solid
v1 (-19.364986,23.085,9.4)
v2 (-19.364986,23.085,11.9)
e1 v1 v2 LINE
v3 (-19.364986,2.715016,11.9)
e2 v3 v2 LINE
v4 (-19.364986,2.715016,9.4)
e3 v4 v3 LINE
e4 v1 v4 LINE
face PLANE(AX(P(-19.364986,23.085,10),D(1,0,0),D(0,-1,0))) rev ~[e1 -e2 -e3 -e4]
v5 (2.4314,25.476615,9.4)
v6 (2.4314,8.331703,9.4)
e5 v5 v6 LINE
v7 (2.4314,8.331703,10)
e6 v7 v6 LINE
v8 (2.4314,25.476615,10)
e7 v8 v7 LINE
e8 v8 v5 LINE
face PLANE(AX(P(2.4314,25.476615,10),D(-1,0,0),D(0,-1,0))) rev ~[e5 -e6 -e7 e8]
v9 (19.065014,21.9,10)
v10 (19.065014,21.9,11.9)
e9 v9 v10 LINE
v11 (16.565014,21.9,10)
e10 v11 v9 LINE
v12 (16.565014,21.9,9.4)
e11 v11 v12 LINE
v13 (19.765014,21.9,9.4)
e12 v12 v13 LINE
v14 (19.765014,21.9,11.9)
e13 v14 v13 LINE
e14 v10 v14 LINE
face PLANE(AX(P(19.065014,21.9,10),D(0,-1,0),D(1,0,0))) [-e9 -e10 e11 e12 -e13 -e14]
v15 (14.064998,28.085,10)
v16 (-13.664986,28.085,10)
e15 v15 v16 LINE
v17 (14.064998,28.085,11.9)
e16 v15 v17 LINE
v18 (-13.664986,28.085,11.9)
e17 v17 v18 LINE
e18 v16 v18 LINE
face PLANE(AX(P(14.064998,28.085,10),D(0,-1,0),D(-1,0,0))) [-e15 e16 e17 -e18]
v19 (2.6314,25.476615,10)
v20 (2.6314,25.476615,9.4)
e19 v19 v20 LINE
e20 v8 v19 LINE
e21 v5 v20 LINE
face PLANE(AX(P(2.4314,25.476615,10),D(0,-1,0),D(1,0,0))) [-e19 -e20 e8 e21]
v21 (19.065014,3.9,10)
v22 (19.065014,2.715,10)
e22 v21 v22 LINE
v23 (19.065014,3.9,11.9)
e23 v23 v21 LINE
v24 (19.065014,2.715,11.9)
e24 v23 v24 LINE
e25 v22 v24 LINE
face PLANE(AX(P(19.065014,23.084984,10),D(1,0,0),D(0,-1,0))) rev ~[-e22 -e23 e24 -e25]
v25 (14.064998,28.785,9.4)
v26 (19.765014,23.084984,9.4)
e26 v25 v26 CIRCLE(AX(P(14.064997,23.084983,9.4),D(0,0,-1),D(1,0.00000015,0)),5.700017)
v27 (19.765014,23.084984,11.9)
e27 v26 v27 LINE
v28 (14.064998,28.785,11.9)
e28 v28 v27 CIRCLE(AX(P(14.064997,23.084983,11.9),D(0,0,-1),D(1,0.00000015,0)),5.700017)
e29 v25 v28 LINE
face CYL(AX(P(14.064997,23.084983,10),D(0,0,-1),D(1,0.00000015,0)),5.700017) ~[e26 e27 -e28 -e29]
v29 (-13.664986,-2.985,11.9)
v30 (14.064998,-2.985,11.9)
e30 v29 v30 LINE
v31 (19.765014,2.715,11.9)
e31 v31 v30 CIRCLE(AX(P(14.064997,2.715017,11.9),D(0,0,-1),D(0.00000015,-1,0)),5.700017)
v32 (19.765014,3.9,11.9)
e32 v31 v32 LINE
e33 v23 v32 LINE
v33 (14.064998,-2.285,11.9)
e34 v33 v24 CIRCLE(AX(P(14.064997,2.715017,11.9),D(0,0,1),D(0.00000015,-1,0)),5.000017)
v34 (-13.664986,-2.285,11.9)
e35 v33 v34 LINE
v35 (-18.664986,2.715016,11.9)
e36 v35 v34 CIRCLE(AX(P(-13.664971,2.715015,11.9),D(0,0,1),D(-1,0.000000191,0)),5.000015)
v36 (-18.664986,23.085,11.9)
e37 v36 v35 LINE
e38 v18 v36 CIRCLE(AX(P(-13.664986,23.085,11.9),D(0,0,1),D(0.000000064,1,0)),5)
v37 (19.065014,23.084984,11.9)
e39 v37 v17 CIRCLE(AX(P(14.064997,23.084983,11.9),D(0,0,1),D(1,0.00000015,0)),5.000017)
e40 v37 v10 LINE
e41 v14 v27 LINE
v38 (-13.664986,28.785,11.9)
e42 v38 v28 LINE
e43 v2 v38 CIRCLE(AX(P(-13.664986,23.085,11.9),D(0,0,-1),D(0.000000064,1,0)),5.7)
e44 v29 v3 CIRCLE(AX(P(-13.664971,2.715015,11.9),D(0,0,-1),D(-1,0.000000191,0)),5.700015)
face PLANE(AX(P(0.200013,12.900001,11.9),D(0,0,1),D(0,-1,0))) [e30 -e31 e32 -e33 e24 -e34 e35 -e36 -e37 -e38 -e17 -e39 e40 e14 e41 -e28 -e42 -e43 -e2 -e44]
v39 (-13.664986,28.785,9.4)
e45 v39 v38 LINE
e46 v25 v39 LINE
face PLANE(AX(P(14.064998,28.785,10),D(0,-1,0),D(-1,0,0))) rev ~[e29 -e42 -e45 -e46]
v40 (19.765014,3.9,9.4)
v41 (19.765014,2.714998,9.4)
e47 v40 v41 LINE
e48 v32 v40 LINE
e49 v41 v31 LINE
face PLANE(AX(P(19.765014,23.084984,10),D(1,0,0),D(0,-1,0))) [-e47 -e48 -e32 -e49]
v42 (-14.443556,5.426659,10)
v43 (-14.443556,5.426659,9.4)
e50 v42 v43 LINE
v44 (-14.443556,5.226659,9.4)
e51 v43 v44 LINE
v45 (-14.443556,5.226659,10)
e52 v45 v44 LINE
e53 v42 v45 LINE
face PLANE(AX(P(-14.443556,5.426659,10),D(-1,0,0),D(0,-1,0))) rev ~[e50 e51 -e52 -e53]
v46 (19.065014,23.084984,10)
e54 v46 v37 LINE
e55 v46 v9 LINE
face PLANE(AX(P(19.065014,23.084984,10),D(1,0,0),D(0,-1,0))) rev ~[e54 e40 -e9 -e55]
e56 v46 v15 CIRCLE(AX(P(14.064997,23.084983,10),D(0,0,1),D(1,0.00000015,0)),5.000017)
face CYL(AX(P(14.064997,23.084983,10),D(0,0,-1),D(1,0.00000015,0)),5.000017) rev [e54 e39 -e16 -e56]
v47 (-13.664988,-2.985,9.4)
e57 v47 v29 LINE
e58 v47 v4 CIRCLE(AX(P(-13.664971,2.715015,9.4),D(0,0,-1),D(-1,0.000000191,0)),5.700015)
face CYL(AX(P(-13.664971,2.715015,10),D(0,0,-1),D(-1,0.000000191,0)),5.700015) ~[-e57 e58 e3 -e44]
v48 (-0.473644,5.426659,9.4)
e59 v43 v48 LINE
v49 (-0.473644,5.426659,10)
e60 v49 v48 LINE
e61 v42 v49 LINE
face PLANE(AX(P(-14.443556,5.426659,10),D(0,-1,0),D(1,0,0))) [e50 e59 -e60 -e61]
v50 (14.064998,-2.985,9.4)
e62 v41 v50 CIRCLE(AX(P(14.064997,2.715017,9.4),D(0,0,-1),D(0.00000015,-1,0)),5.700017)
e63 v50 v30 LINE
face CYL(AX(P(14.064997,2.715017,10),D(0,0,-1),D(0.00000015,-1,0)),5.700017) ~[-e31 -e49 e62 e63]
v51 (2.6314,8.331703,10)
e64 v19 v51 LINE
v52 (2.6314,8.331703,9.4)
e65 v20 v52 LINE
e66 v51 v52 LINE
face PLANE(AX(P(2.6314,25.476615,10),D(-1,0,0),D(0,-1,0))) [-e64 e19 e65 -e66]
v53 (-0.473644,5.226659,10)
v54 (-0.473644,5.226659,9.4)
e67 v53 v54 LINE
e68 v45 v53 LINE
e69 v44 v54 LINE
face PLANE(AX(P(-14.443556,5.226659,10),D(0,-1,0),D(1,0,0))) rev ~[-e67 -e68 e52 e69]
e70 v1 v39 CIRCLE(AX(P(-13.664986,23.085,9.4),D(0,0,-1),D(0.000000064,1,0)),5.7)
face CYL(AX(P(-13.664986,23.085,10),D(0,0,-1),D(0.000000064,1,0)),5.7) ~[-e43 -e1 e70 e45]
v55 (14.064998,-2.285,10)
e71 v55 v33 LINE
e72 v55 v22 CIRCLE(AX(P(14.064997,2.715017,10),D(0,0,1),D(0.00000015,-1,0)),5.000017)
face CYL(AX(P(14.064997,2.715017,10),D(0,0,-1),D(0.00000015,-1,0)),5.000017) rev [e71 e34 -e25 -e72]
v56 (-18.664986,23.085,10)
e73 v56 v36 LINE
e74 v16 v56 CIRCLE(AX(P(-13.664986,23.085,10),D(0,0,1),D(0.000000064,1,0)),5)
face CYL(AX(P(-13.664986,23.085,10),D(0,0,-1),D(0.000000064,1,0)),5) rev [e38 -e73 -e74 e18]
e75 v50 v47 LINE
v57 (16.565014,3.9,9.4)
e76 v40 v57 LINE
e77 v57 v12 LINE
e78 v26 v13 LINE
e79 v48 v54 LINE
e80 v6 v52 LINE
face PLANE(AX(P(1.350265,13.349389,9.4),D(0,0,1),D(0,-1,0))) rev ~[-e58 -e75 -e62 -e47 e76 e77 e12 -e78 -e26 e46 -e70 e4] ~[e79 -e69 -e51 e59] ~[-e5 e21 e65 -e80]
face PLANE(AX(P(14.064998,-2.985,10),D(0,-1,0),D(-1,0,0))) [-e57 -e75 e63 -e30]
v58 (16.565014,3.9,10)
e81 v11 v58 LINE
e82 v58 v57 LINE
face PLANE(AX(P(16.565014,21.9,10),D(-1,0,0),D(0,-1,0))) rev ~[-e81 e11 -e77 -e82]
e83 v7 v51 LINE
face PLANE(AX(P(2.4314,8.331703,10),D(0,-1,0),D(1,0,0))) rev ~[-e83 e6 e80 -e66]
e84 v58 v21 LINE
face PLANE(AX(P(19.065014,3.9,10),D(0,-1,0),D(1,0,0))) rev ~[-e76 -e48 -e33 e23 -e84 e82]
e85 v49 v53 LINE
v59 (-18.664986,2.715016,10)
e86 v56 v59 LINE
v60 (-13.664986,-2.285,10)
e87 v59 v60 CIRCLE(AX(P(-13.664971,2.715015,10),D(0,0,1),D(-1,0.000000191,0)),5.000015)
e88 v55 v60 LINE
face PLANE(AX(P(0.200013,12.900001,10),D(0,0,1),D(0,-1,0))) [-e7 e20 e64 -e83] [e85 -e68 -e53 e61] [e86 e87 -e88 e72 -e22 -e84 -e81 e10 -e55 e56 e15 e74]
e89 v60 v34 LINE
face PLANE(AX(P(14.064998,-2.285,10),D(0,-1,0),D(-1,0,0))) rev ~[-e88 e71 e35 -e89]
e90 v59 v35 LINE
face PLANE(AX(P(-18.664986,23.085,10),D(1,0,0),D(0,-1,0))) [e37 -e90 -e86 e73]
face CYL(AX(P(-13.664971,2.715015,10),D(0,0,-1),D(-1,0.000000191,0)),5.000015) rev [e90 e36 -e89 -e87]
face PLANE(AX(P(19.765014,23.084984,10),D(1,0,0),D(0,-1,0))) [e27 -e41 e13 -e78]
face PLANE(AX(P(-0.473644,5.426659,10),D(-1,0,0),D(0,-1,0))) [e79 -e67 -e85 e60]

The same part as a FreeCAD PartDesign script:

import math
import FreeCAD as App
import Part
import Sketcher
Q = App.Units.Quantity


def faces_at(feature, points):
    """Names of the faces that lie closest to the given points."""
    faces = feature.Shape.Faces
    near = lambda p: min(range(len(faces)), key=lambda i: faces[i].distToShape(Part.Vertex(*p))[0])
    return sorted({f"Face{near(p) + 1}" for p in points})


def add_polygon(sketch, points):
    """Adds a closed chain of lines whose ends are joined by coincident constraints."""
    first, n = sketch.GeometryCount, len(points)
    for a, b in zip(points, points[1:] + points[:1]):
        sketch.addGeometry(Part.LineSegment(App.Vector(*a, 0), App.Vector(*b, 0)), False)
    for i in range(n):
        sketch.addConstraint(Sketcher.Constraint("Coincident", first + i, 2, first + (i + 1) % n, 1))

doc = App.newDocument("Part")
params = doc.addObject("Spreadsheet::Sheet", "Params")
for row, (alias, value) in enumerate([
    ("sketch1_radius", "5 mm"),
    ("pad1_length", "1.9 mm"),
    ("thickness_wall", "0.7 mm"),
    ("sketch2_width", "18 mm"),
    ("sketch2_height", "3 mm"),
    ("pocket1_length", "1 mm"),
    ("pocket1_length2", "5 mm"),
    ("pocket2_length", "1.4 mm"),
    ("sketch4_width", "18 mm"),
    ("sketch4_height", "0.8 mm"),
    ("pocket3_length", "5 mm"),
    ("sketch5_width", "0.2 mm"),
    ("pocket4_length", "5 mm"),
], start=1):
    params.set(f"A{row}", alias)
    params.set(f"B{row}", "=" + value)
    params.setAlias(f"B{row}", alias)

body = doc.addObject("PartDesign::Body", "Body")

sketch1 = body.newObject("Sketcher::SketchObject", "Sketch")
sketch1.AttachmentSupport = (doc.getObject("XY_Plane"), [""])
sketch1.MapMode = "FlatFace"
sketch1.addGeometry(Part.LineSegment(App.Vector(-15.2, 13.9, 0), App.Vector(-15.2, -13.9, 0)), False)
sketch1.addGeometry(Part.ArcOfCircle(Part.Circle(App.Vector(-10.2, -13.9, 0), App.Vector(0, 0, 1), 5), math.radians(180), math.radians(270)), False)
sketch1.addGeometry(Part.LineSegment(App.Vector(-10.2, -18.9, 0), App.Vector(10.2, -18.9, 0)), False)
sketch1.addGeometry(Part.ArcOfCircle(Part.Circle(App.Vector(10.2, -13.9, 0), App.Vector(0, 0, 1), 5), math.radians(-90), math.radians(0)), False)
sketch1.addGeometry(Part.LineSegment(App.Vector(15.2, -13.9, 0), App.Vector(15.2, 13.9, 0)), False)
sketch1.addGeometry(Part.ArcOfCircle(Part.Circle(App.Vector(10.2, 13.9, 0), App.Vector(0, 0, 1), 5), math.radians(0), math.radians(90)), False)
sketch1.addGeometry(Part.LineSegment(App.Vector(10.2, 18.9, 0), App.Vector(-10.2, 18.9, 0)), False)
sketch1.addGeometry(Part.ArcOfCircle(Part.Circle(App.Vector(-10.2, 13.9, 0), App.Vector(0, 0, 1), 5), math.radians(90), math.radians(180)), False)
sketch1.addConstraint(Sketcher.Constraint("Tangent", 0, 2, 1, 1))
sketch1.addConstraint(Sketcher.Constraint("Tangent", 1, 2, 2, 1))
sketch1.addConstraint(Sketcher.Constraint("Tangent", 2, 2, 3, 1))
sketch1.addConstraint(Sketcher.Constraint("Coincident", 3, 2, 4, 1))
sketch1.addConstraint(Sketcher.Constraint("Tangent", 4, 2, 5, 1))
sketch1.addConstraint(Sketcher.Constraint("Coincident", 5, 2, 6, 1))
sketch1.addConstraint(Sketcher.Constraint("Tangent", 6, 2, 7, 1))
sketch1.addConstraint(Sketcher.Constraint("Tangent", 7, 2, 0, 1))
sketch1.addConstraint(Sketcher.Constraint("Vertical", 0))
sketch1.addConstraint(Sketcher.Constraint("Horizontal", 2))
sketch1.addConstraint(Sketcher.Constraint("Vertical", 4))
sketch1.addConstraint(Sketcher.Constraint("Horizontal", 6))
sketch1.addConstraint(Sketcher.Constraint("Equal", 3, 5))
sketch1.addConstraint(Sketcher.Constraint("Equal", 5, 7))
sketch1.addConstraint(Sketcher.Constraint("Symmetric", 0, 2, 3, 2, -2))
sketch1.addConstraint(Sketcher.Constraint("Equal", 2, 6))
sketch1.addConstraint(Sketcher.Constraint("Radius", 1, Q("5 mm")))
sketch1.addConstraint(Sketcher.Constraint("DistanceX", 1, 3, 3, 2, Q("25.37 mm")))
sketch1.addConstraint(Sketcher.Constraint("DistanceY", 3, 2, 5, 2, Q("32.73 mm")))
sketch1.addConstraint(Sketcher.Constraint("Radius", 3, Q("5.000015 mm")))
sketch1.addConstraint(Sketcher.Constraint("DistanceY", 3, 3, -1, 1, Q("13.864971 mm")))
sketch1.setExpression("Constraints[16]", "Params.sketch1_radius")
pad1 = body.newObject("PartDesign::Pad", "Pad")
pad1.Profile = sketch1
pad1.setExpression("Length", "Params.pad1_length")
doc.recompute()

thickness = body.newObject("PartDesign::Thickness", "Thickness")
thickness.Base = (pad1, faces_at(pad1, [(0, 0, 1.9)]))
thickness.setExpression("Value", "Params.thickness_wall")
thickness.Reversed = False
thickness.Join = "Intersection"

sketch2 = body.newObject("Sketcher::SketchObject", "Sketch001")
sketch2.AttachmentSupport = (doc.getObject("XY_Plane"), [""])
sketch2.MapMode = "FlatFace"
add_polygon(sketch2, [(-9, 19.4), (-9, 16.4), (9, 16.4), (9, 19.4)])
sketch2.addConstraint(Sketcher.Constraint("Vertical", 0))
sketch2.addConstraint(Sketcher.Constraint("Horizontal", 1))
sketch2.addConstraint(Sketcher.Constraint("Vertical", 2))
sketch2.addConstraint(Sketcher.Constraint("Horizontal", 3))
sketch2.addConstraint(Sketcher.Constraint("DistanceX", 1, 1, 1, 2, Q("18 mm")))
sketch2.addConstraint(Sketcher.Constraint("DistanceY", 0, 2, 0, 1, Q("3 mm")))
sketch2.addConstraint(Sketcher.Constraint("DistanceX", 0, 2, -1, 1, Q("9 mm")))
sketch2.addConstraint(Sketcher.Constraint("DistanceY", -1, 1, 0, 2, Q("16.365014 mm")))
sketch2.setExpression("Constraints[8]", "Params.sketch2_width")
sketch2.setExpression("Constraints[9]", "Params.sketch2_height")
pocket1 = body.newObject("PartDesign::Pocket", "Pocket")
pocket1.Profile = sketch2
pocket1.Type = "TwoLengths"
pocket1.setExpression("Length", "Params.pocket1_length")
pocket1.setExpression("Length2", "Params.pocket1_length2")
pocket1.Reversed = True

sketch3 = body.newObject("Sketcher::SketchObject", "Sketch002")
sketch3.AttachmentSupport = (doc.getObject("XY_Plane"), [""])
sketch3.MapMode = "FlatFace"
sketch3.AttachmentOffset = App.Placement(App.Vector(0, 0, -0.6), App.Rotation())
add_polygon(sketch3, [(-25, 26), (-25, -24), (24, -24), (24, 26)])
sketch3.addConstraint(Sketcher.Constraint("Vertical", 0))
sketch3.addConstraint(Sketcher.Constraint("Horizontal", 1))
sketch3.addConstraint(Sketcher.Constraint("Vertical", 2))
sketch3.addConstraint(Sketcher.Constraint("Horizontal", 3))
sketch3.addConstraint(Sketcher.Constraint("DistanceX", 1, 1, 1, 2, Q("49.648089 mm")))
sketch3.addConstraint(Sketcher.Constraint("DistanceY", 0, 2, 0, 1, Q("49.770681 mm")))
sketch3.addConstraint(Sketcher.Constraint("DistanceX", 0, 2, -1, 1, Q("25.273433 mm")))
sketch3.addConstraint(Sketcher.Constraint("DistanceY", 0, 2, -1, 1, Q("23.735076 mm")))
pocket2 = body.newObject("PartDesign::Pocket", "Pocket001")
pocket2.Profile = sketch3
pocket2.setExpression("Length", "Params.pocket2_length")

sketch4 = body.newObject("Sketcher::SketchObject", "Sketch003")
sketch4.AttachmentSupport = (doc.getObject("XY_Plane"), [""])
sketch4.MapMode = "FlatFace"
add_polygon(sketch4, [(-9, 19.7), (-9, 18.9), (9, 18.9), (9, 19.7)])
sketch4.addConstraint(Sketcher.Constraint("Vertical", 0))
sketch4.addConstraint(Sketcher.Constraint("Horizontal", 1))
sketch4.addConstraint(Sketcher.Constraint("Vertical", 2))
sketch4.addConstraint(Sketcher.Constraint("Horizontal", 3))
sketch4.addConstraint(Sketcher.Constraint("DistanceX", 1, 1, 1, 2, Q("18 mm")))
sketch4.addConstraint(Sketcher.Constraint("DistanceY", 0, 2, 0, 1, Q("0.8 mm")))
sketch4.addConstraint(Sketcher.Constraint("DistanceX", 0, 2, -1, 1, Q("9 mm")))
sketch4.addConstraint(Sketcher.Constraint("DistanceY", -1, 1, 0, 2, Q("18.865014 mm")))
sketch4.setExpression("Constraints[8]", "Params.sketch4_width")
sketch4.setExpression("Constraints[9]", "Params.sketch4_height")
pocket3 = body.newObject("PartDesign::Pocket", "Pocket002")
pocket3.Profile = sketch4
pocket3.setExpression("Length", "Params.pocket3_length")
pocket3.Midplane = True

sketch5 = body.newObject("Sketcher::SketchObject", "Sketch004")
sketch5.AttachmentSupport = (doc.getObject("XY_Plane"), [""])
sketch5.MapMode = "FlatFace"
add_polygon(sketch5, [(-12.58, 2.43), (-12.58, 2.23), (4.57, 2.23), (4.57, 2.43)])
add_polygon(sketch5, [(7.47, -0.67), (7.47, -14.64), (7.67, -14.64), (7.67, -0.67)])
sketch5.addConstraint(Sketcher.Constraint("Vertical", 0))
sketch5.addConstraint(Sketcher.Constraint("Horizontal", 1))
sketch5.addConstraint(Sketcher.Constraint("Vertical", 2))
sketch5.addConstraint(Sketcher.Constraint("Horizontal", 3))
sketch5.addConstraint(Sketcher.Constraint("Vertical", 4))
sketch5.addConstraint(Sketcher.Constraint("Horizontal", 5))
sketch5.addConstraint(Sketcher.Constraint("Vertical", 6))
sketch5.addConstraint(Sketcher.Constraint("Horizontal", 7))
sketch5.addConstraint(Sketcher.Constraint("Equal", 7, 0))
sketch5.addConstraint(Sketcher.Constraint("DistanceX", 5, 1, 5, 2, Q("0.2 mm")))
sketch5.addConstraint(Sketcher.Constraint("DistanceY", -1, 1, 0, 2, Q("2.2314 mm")))
sketch5.addConstraint(Sketcher.Constraint("DistanceX", 1, 1, 1, 2, Q("17.144912 mm")))
sketch5.addConstraint(Sketcher.Constraint("DistanceY", 4, 2, 4, 1, Q("13.969912 mm")))
sketch5.addConstraint(Sketcher.Constraint("DistanceX", -1, 1, 4, 2, Q("7.473341 mm")))
sketch5.addConstraint(Sketcher.Constraint("DistanceX", 0, 2, -1, 1, Q("12.576615 mm")))
sketch5.addConstraint(Sketcher.Constraint("DistanceY", 4, 2, -1, 1, Q("14.643556 mm")))
sketch5.setExpression("Constraints[17]", "Params.sketch5_width")
pocket4 = body.newObject("PartDesign::Pocket", "Pocket003")
pocket4.Profile = sketch5
pocket4.setExpression("Length", "Params.pocket4_length")
body2 = doc.addObject("PartDesign::Body", "Body001")
doc.recompute()

body.Placement = App.Placement(App.Vector(0.2, 12.9, 10), App.Rotation(App.Vector(0, 0, 1), 270))
boolean = body2.newObject("PartDesign::Boolean", "Boolean")
boolean.Type = "Fuse"
boolean.addObjects([body])

doc.recompute()
